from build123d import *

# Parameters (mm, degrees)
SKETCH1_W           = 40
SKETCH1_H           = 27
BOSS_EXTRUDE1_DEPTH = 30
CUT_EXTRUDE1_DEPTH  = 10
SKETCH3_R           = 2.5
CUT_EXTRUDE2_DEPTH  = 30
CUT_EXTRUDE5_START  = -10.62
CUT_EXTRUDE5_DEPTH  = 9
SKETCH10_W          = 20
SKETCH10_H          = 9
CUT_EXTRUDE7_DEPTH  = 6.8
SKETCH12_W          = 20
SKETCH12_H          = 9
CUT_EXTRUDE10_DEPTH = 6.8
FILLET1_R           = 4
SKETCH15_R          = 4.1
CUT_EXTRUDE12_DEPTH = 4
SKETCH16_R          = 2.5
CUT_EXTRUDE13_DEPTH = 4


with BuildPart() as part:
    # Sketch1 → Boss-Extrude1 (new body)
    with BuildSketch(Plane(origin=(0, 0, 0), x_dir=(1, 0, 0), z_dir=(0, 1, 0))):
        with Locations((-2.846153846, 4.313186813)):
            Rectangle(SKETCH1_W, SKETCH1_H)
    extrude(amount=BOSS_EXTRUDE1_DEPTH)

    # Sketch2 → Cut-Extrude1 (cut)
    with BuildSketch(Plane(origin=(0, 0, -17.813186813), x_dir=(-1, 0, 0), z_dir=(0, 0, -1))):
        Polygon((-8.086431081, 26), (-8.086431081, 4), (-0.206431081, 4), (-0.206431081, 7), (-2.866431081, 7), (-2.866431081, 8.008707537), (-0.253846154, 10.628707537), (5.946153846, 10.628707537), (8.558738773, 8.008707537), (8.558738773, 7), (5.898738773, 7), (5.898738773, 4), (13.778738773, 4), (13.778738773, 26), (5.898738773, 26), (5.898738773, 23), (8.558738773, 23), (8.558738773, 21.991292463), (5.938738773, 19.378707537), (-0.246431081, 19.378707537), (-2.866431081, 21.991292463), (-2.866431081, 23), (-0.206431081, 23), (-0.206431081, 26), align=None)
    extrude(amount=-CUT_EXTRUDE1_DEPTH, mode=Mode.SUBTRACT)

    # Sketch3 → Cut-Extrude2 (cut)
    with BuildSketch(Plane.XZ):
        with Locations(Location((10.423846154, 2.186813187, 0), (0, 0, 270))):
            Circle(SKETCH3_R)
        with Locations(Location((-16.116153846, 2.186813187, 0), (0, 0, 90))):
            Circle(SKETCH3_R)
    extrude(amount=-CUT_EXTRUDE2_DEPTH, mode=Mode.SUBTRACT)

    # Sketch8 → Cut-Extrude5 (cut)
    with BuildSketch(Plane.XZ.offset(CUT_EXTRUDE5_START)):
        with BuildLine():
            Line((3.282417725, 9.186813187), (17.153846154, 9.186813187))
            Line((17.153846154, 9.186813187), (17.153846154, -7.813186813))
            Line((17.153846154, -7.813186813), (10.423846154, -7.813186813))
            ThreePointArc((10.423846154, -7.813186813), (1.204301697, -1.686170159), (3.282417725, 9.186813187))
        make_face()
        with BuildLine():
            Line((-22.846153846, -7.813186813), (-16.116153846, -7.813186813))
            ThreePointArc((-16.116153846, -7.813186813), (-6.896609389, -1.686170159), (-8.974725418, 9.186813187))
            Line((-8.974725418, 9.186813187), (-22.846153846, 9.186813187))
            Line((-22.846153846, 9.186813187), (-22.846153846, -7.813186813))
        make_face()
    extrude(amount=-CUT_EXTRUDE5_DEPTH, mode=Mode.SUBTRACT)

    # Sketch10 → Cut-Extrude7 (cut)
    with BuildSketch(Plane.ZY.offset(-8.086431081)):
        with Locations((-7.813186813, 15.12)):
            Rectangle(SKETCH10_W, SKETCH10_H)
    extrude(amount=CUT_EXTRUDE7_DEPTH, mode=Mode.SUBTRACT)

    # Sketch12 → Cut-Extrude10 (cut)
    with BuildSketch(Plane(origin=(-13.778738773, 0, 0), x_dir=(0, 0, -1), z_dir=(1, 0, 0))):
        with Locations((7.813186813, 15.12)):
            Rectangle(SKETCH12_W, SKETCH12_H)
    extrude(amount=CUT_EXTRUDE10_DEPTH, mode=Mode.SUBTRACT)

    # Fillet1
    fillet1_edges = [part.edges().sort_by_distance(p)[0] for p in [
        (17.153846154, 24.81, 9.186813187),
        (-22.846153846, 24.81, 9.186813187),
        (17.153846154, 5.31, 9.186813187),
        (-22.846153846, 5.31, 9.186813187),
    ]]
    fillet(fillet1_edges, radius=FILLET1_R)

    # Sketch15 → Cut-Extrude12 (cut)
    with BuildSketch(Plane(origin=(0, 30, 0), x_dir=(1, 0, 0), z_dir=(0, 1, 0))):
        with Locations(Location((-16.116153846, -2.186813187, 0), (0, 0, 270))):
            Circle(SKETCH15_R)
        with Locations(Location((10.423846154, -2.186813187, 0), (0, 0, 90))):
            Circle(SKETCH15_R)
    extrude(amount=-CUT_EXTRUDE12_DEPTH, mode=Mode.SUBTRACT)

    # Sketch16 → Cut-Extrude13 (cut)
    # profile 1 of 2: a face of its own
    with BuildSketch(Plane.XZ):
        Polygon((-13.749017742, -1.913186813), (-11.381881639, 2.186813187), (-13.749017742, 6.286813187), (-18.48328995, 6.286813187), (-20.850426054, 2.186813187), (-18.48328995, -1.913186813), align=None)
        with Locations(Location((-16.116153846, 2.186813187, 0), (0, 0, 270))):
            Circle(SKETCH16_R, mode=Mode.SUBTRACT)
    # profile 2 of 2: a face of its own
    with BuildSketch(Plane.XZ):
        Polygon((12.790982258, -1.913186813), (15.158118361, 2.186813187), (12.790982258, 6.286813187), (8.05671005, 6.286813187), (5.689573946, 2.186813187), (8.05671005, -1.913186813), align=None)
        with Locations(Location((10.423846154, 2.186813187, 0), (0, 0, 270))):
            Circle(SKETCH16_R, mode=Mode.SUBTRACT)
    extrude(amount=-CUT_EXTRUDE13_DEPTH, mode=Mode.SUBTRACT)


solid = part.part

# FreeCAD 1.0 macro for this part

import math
import FreeCAD as App
import Part
import Sketcher
Q = App.Units.Quantity


def edges_at(feature, points):
    """Names of the edges that pass closest to the given points."""
    edges = feature.Shape.Edges
    near = lambda p: min(range(len(edges)), key=lambda i: edges[i].distToShape(Part.Vertex(*p))[0])
    return sorted({f"Edge{near(p) + 1}" for p in points})

doc = App.newDocument("Part")
body = doc.addObject("PartDesign::Body", "Body")

# Sketch on XZ plane
sketch1 = body.newObject("Sketcher::SketchObject", "Sketch")
sketch1.AttachmentSupport = (doc.getObject("XZ_Plane"), [""])
sketch1.MapMode = "FlatFace"
sketch1.addGeometry(Part.LineSegment(App.Vector(-23, -18, 0), App.Vector(-23, 9, 0)), False)
sketch1.addGeometry(Part.LineSegment(App.Vector(-23, 9, 0), App.Vector(17, 9, 0)), False)
sketch1.addGeometry(Part.LineSegment(App.Vector(17, 9, 0), App.Vector(17, -18, 0)), False)
sketch1.addGeometry(Part.LineSegment(App.Vector(17, -18, 0), App.Vector(-23, -18, 0)), False)
sketch1.addConstraint(Sketcher.Constraint("Coincident", 0, 2, 1, 1))
sketch1.addConstraint(Sketcher.Constraint("Coincident", 1, 2, 2, 1))
sketch1.addConstraint(Sketcher.Constraint("Coincident", 2, 2, 3, 1))
sketch1.addConstraint(Sketcher.Constraint("Coincident", 3, 2, 0, 1))
sketch1.addConstraint(Sketcher.Constraint("Vertical", 0))
sketch1.addConstraint(Sketcher.Constraint("Horizontal", 1))
sketch1.addConstraint(Sketcher.Constraint("Vertical", 2))
sketch1.addConstraint(Sketcher.Constraint("Horizontal", 3))
sketch1.addConstraint(Sketcher.Constraint("DistanceX", 1, 1, 1, 2, Q("40 mm")))
sketch1.addConstraint(Sketcher.Constraint("DistanceY", 0, 1, 0, 2, Q("27 mm")))
sketch1.addConstraint(Sketcher.Constraint("DistanceX", 0, 2, -1, 1, Q("22.846154 mm")))
sketch1.addConstraint(Sketcher.Constraint("DistanceY", -1, 1, 0, 2, Q("9.186813 mm")))
pad1 = body.newObject("PartDesign::Pad", "Pad")
pad1.Profile = sketch1
pad1.Length = 30
pad1.Reversed = True

# Sketch on XY plane
sketch2 = body.newObject("Sketcher::SketchObject", "Sketch001")
sketch2.AttachmentSupport = (doc.getObject("XY_Plane"), [""])
sketch2.MapMode = "FlatFace"
sketch2.AttachmentOffset = App.Placement(App.Vector(0, 0, -17.813187), App.Rotation())
sketch2.addGeometry(Part.LineSegment(App.Vector(8.1, 26, 0), App.Vector(8.1, 4, 0)), False)
sketch2.addGeometry(Part.LineSegment(App.Vector(8.1, 4, 0), App.Vector(0.2, 4, 0)), False)
sketch2.addGeometry(Part.LineSegment(App.Vector(0.2, 4, 0), App.Vector(0.2, 7, 0)), False)
sketch2.addGeometry(Part.LineSegment(App.Vector(0.2, 7, 0), App.Vector(2.9, 7, 0)), False)
sketch2.addGeometry(Part.LineSegment(App.Vector(2.9, 7, 0), App.Vector(2.9, 8, 0)), False)
sketch2.addGeometry(Part.LineSegment(App.Vector(2.9, 8, 0), App.Vector(0.3, 10.6, 0)), False)
sketch2.addGeometry(Part.LineSegment(App.Vector(0.3, 10.6, 0), App.Vector(-5.9, 10.6, 0)), False)
sketch2.addGeometry(Part.LineSegment(App.Vector(-5.9, 10.6, 0), App.Vector(-8.6, 8, 0)), False)
sketch2.addGeometry(Part.LineSegment(App.Vector(-8.6, 8, 0), App.Vector(-8.6, 7, 0)), False)
sketch2.addGeometry(Part.LineSegment(App.Vector(-8.6, 7, 0), App.Vector(-5.9, 7, 0)), False)
sketch2.addGeometry(Part.LineSegment(App.Vector(-5.9, 7, 0), App.Vector(-5.9, 4, 0)), False)
sketch2.addGeometry(Part.LineSegment(App.Vector(-5.9, 4, 0), App.Vector(-13.8, 4, 0)), False)
sketch2.addGeometry(Part.LineSegment(App.Vector(-13.8, 4, 0), App.Vector(-13.8, 26, 0)), False)
sketch2.addGeometry(Part.LineSegment(App.Vector(-13.8, 26, 0), App.Vector(-5.9, 26, 0)), False)
sketch2.addGeometry(Part.LineSegment(App.Vector(-5.9, 26, 0), App.Vector(-5.9, 23, 0)), False)
sketch2.addGeometry(Part.LineSegment(App.Vector(-5.9, 23, 0), App.Vector(-8.6, 23, 0)), False)
sketch2.addGeometry(Part.LineSegment(App.Vector(-8.6, 23, 0), App.Vector(-8.6, 22, 0)), False)
sketch2.addGeometry(Part.LineSegment(App.Vector(-8.6, 22, 0), App.Vector(-5.9, 19.4, 0)), False)
sketch2.addGeometry(Part.LineSegment(App.Vector(-5.9, 19.4, 0), App.Vector(0.2, 19.4, 0)), False)
sketch2.addGeometry(Part.LineSegment(App.Vector(0.2, 19.4, 0), App.Vector(2.9, 22, 0)), False)
sketch2.addGeometry(Part.LineSegment(App.Vector(2.9, 22, 0), App.Vector(2.9, 23, 0)), False)
sketch2.addGeometry(Part.LineSegment(App.Vector(2.9, 23, 0), App.Vector(0.2, 23, 0)), False)
sketch2.addGeometry(Part.LineSegment(App.Vector(0.2, 23, 0), App.Vector(0.2, 26, 0)), False)
sketch2.addGeometry(Part.LineSegment(App.Vector(0.2, 26, 0), App.Vector(8.1, 26, 0)), False)
sketch2.addConstraint(Sketcher.Constraint("Coincident", 0, 2, 1, 1))
sketch2.addConstraint(Sketcher.Constraint("Coincident", 1, 2, 2, 1))
sketch2.addConstraint(Sketcher.Constraint("Coincident", 2, 2, 3, 1))
sketch2.addConstraint(Sketcher.Constraint("Coincident", 3, 2, 4, 1))
sketch2.addConstraint(Sketcher.Constraint("Coincident", 4, 2, 5, 1))
sketch2.addConstraint(Sketcher.Constraint("Coincident", 5, 2, 6, 1))
sketch2.addConstraint(Sketcher.Constraint("Coincident", 6, 2, 7, 1))
sketch2.addConstraint(Sketcher.Constraint("Coincident", 7, 2, 8, 1))
sketch2.addConstraint(Sketcher.Constraint("Coincident", 8, 2, 9, 1))
sketch2.addConstraint(Sketcher.Constraint("Coincident", 9, 2, 10, 1))
sketch2.addConstraint(Sketcher.Constraint("Coincident", 10, 2, 11, 1))
sketch2.addConstraint(Sketcher.Constraint("Coincident", 11, 2, 12, 1))
sketch2.addConstraint(Sketcher.Constraint("Coincident", 12, 2, 13, 1))
sketch2.addConstraint(Sketcher.Constraint("Coincident", 13, 2, 14, 1))
sketch2.addConstraint(Sketcher.Constraint("Coincident", 14, 2, 15, 1))
sketch2.addConstraint(Sketcher.Constraint("Coincident", 15, 2, 16, 1))
sketch2.addConstraint(Sketcher.Constraint("Coincident", 16, 2, 17, 1))
sketch2.addConstraint(Sketcher.Constraint("Coincident", 17, 2, 18, 1))
sketch2.addConstraint(Sketcher.Constraint("Coincident", 18, 2, 19, 1))
sketch2.addConstraint(Sketcher.Constraint("Coincident", 19, 2, 20, 1))
sketch2.addConstraint(Sketcher.Constraint("Coincident", 20, 2, 21, 1))
sketch2.addConstraint(Sketcher.Constraint("Coincident", 21, 2, 22, 1))
sketch2.addConstraint(Sketcher.Constraint("Coincident", 22, 2, 23, 1))
sketch2.addConstraint(Sketcher.Constraint("Coincident", 23, 2, 0, 1))
sketch2.addConstraint(Sketcher.Constraint("Vertical", 0))
sketch2.addConstraint(Sketcher.Constraint("Horizontal", 1))
sketch2.addConstraint(Sketcher.Constraint("Vertical", 2))
sketch2.addConstraint(Sketcher.Constraint("Horizontal", 3))
sketch2.addConstraint(Sketcher.Constraint("Vertical", 4))
sketch2.addConstraint(Sketcher.Constraint("Horizontal", 6))
sketch2.addConstraint(Sketcher.Constraint("Vertical", 8))
sketch2.addConstraint(Sketcher.Constraint("Horizontal", 9))
sketch2.addConstraint(Sketcher.Constraint("Vertical", 10))
sketch2.addConstraint(Sketcher.Constraint("Horizontal", 11))
sketch2.addConstraint(Sketcher.Constraint("Vertical", 12))
sketch2.addConstraint(Sketcher.Constraint("Horizontal", 13))
sketch2.addConstraint(Sketcher.Constraint("Vertical", 14))
sketch2.addConstraint(Sketcher.Constraint("Horizontal", 15))
sketch2.addConstraint(Sketcher.Constraint("Vertical", 16))
sketch2.addConstraint(Sketcher.Constraint("Horizontal", 18))
sketch2.addConstraint(Sketcher.Constraint("Vertical", 20))
sketch2.addConstraint(Sketcher.Constraint("Horizontal", 21))
sketch2.addConstraint(Sketcher.Constraint("Vertical", 22))
sketch2.addConstraint(Sketcher.Constraint("Horizontal", 23))
sketch2.addConstraint(Sketcher.Constraint("Perpendicular", 7, 17))
sketch2.addConstraint(Sketcher.Constraint("Perpendicular", 5, 19))
sketch2.addConstraint(Sketcher.Constraint("Horizontal", 4, 2, 7, 2))
sketch2.addConstraint(Sketcher.Constraint("Horizontal", 3, 2, 8, 2))
sketch2.addConstraint(Sketcher.Constraint("Horizontal", 1, 2, 10, 2))
sketch2.addConstraint(Sketcher.Constraint("Horizontal", 16, 2, 19, 2))
sketch2.addConstraint(Sketcher.Constraint("Horizontal", 15, 2, 20, 2))
sketch2.addConstraint(Sketcher.Constraint("Horizontal", 13, 2, 22, 2))
sketch2.addConstraint(Sketcher.Constraint("Vertical", 10, 2, 13, 2))
sketch2.addConstraint(Sketcher.Constraint("Vertical", 8, 2, 15, 2))
sketch2.addConstraint(Sketcher.Constraint("Vertical", 4, 2, 19, 2))
sketch2.addConstraint(Sketcher.Constraint("Vertical", 2, 2, 21, 2))
sketch2.addConstraint(Sketcher.Constraint("Equal", 3, 9))
sketch2.addConstraint(Sketcher.Constraint("Equal", 1, 11))
sketch2.addConstraint(Sketcher.Constraint("Equal", 10, 14))
sketch2.addConstraint(Sketcher.Constraint("Equal", 8, 16))
sketch2.addConstraint(Sketcher.Constraint("Equal", 5, 7))
sketch2.addConstraint(Sketcher.Constraint("Equal", 7, 17))
sketch2.addConstraint(Sketcher.Constraint("DistanceY", 0, 2, 0, 1, Q("22 mm")))
sketch2.addConstraint(Sketcher.Constraint("DistanceY", 2, 1, 2, 2, Q("3 mm")))
sketch2.addConstraint(Sketcher.Constraint("DistanceX", 6, 2, 6, 1, Q("6.2 mm")))
sketch2.addConstraint(Sketcher.Constraint("DistanceY", -1, 1, 0, 2, Q("4 mm")))
sketch2.addConstraint(Sketcher.Constraint("Distance", 5, Q("3.7 mm")))
sketch2.addConstraint(Sketcher.Constraint("DistanceX", 1, 2, 1, 1, Q("7.88 mm")))
sketch2.addConstraint(Sketcher.Constraint("DistanceX", 3, 1, 3, 2, Q("2.66 mm")))
sketch2.addConstraint(Sketcher.Constraint("DistanceY", 4, 2, 5, 2, Q("2.62 mm")))
sketch2.addConstraint(Sketcher.Constraint("DistanceY", 6, 2, 17, 2, Q("8.75 mm")))
sketch2.addConstraint(Sketcher.Constraint("DistanceX", -1, 1, 0, 2, Q("8.086431 mm")))
pocket1 = body.newObject("PartDesign::Pocket", "Pocket")
pocket1.Profile = sketch2
pocket1.Length = 10
pocket1.Reversed = True

# Sketch on XZ plane
sketch3 = body.newObject("Sketcher::SketchObject", "Sketch002")
sketch3.AttachmentSupport = (doc.getObject("XZ_Plane"), [""])
sketch3.MapMode = "FlatFace"
sketch3.addGeometry(Part.Circle(App.Vector(10.4, 2.2, 0), App.Vector(0, 0, 1), 2.5), False)
sketch3.addGeometry(Part.Circle(App.Vector(-16.1, 2.2, 0), App.Vector(0, 0, 1), 2.5), False)
sketch3.addConstraint(Sketcher.Constraint("Equal", 0, 1))
sketch3.addConstraint(Sketcher.Constraint("Horizontal", 0, 3, 1, 3))
sketch3.addConstraint(Sketcher.Constraint("Diameter", 0, Q("5 mm")))
sketch3.addConstraint(Sketcher.Constraint("DistanceX", 1, 3, 0, 3, Q("26.54 mm")))
sketch3.addConstraint(Sketcher.Constraint("DistanceX", -1, 1, 0, 3, Q("10.423846 mm")))
sketch3.addConstraint(Sketcher.Constraint("DistanceY", -1, 1, 0, 3, Q("2.186813 mm")))
pocket2 = body.newObject("PartDesign::Pocket", "Pocket001")
pocket2.Profile = sketch3
pocket2.Length = 30

# Sketch on XZ plane
sketch4 = body.newObject("Sketcher::SketchObject", "Sketch003")
sketch4.AttachmentSupport = (doc.getObject("XZ_Plane"), [""])
sketch4.MapMode = "FlatFace"
sketch4.AttachmentOffset = App.Placement(App.Vector(0, 0, -10.62), App.Rotation())
sketch4.addGeometry(Part.LineSegment(App.Vector(17, 9, 0), App.Vector(3, 9, 0)), False)
sketch4.addGeometry(Part.ArcOfCircle(Part.Circle(App.Vector(10, 2, 0), App.Vector(0, 0, 1), 10), math.radians(136), math.radians(270)), False)
sketch4.addGeometry(Part.LineSegment(App.Vector(10, -8, 0), App.Vector(17, -8, 0)), False)
sketch4.addGeometry(Part.LineSegment(App.Vector(17, -8, 0), App.Vector(17, 9, 0)), False)
sketch4.addGeometry(Part.LineSegment(App.Vector(-23, -8, 0), App.Vector(-16, -8, 0)), False)
sketch4.addGeometry(Part.ArcOfCircle(Part.Circle(App.Vector(-16, 2, 0), App.Vector(0, 0, 1), 10), math.radians(-90), math.radians(44)), False)
sketch4.addGeometry(Part.LineSegment(App.Vector(-9, 9, 0), App.Vector(-23, 9, 0)), False)
sketch4.addGeometry(Part.LineSegment(App.Vector(-23, 9, 0), App.Vector(-23, -8, 0)), False)
sketch4.addConstraint(Sketcher.Constraint("Coincident", 0, 2, 1, 1))
sketch4.addConstraint(Sketcher.Constraint("Tangent", 1, 2, 2, 1))
sketch4.addConstraint(Sketcher.Constraint("Coincident", 2, 2, 3, 1))
sketch4.addConstraint(Sketcher.Constraint("Coincident", 3, 2, 0, 1))
sketch4.addConstraint(Sketcher.Constraint("Tangent", 4, 2, 5, 1))
sketch4.addConstraint(Sketcher.Constraint("Coincident", 5, 2, 6, 1))
sketch4.addConstraint(Sketcher.Constraint("Coincident", 6, 2, 7, 1))
sketch4.addConstraint(Sketcher.Constraint("Coincident", 7, 2, 4, 1))
sketch4.addConstraint(Sketcher.Constraint("Horizontal", 0))
sketch4.addConstraint(Sketcher.Constraint("Horizontal", 2))
sketch4.addConstraint(Sketcher.Constraint("Vertical", 3))
sketch4.addConstraint(Sketcher.Constraint("Horizontal", 4))
sketch4.addConstraint(Sketcher.Constraint("Horizontal", 6))
sketch4.addConstraint(Sketcher.Constraint("Vertical", 7))
sketch4.addConstraint(Sketcher.Constraint("Equal", 1, 5))
sketch4.addConstraint(Sketcher.Constraint("Horizontal", 1, 3, 5, 3))
sketch4.addConstraint(Sketcher.Constraint("Horizontal", 3, 2, 5, 2))
sketch4.addConstraint(Sketcher.Constraint("Equal", 2, 4))
sketch4.addConstraint(Sketcher.Constraint("Radius", 1, Q("10 mm")))
sketch4.addConstraint(Sketcher.Constraint("DistanceY", 3, 1, 3, 2, Q("17 mm")))
sketch4.addConstraint(Sketcher.Constraint("DistanceX", 2, 1, 2, 2, Q("6.73 mm")))
sketch4.addConstraint(Sketcher.Constraint("DistanceX", 5, 3, 1, 3, Q("26.54 mm")))
sketch4.addConstraint(Sketcher.Constraint("DistanceX", -1, 1, 1, 3, Q("10.423846 mm")))
sketch4.addConstraint(Sketcher.Constraint("DistanceY", -1, 1, 1, 3, Q("2.186813 mm")))
pocket3 = body.newObject("PartDesign::Pocket", "Pocket002")
pocket3.Profile = sketch4
pocket3.Length = 9

# Sketch on YZ plane
sketch5 = body.newObject("Sketcher::SketchObject", "Sketch004")
sketch5.AttachmentSupport = (doc.getObject("YZ_Plane"), [""])
sketch5.MapMode = "FlatFace"
sketch5.AttachmentOffset = App.Placement(App.Vector(0, 0, 8.086431), App.Rotation())
sketch5.addGeometry(Part.LineSegment(App.Vector(20, -18, 0), App.Vector(11, -18, 0)), False)
sketch5.addGeometry(Part.LineSegment(App.Vector(11, -18, 0), App.Vector(11, 2, 0)), False)
sketch5.addGeometry(Part.LineSegment(App.Vector(11, 2, 0), App.Vector(20, 2, 0)), False)
sketch5.addGeometry(Part.LineSegment(App.Vector(20, 2, 0), App.Vector(20, -18, 0)), False)
sketch5.addConstraint(Sketcher.Constraint("Coincident", 0, 2, 1, 1))
sketch5.addConstraint(Sketcher.Constraint("Coincident", 1, 2, 2, 1))
sketch5.addConstraint(Sketcher.Constraint("Coincident", 2, 2, 3, 1))
sketch5.addConstraint(Sketcher.Constraint("Coincident", 3, 2, 0, 1))
sketch5.addConstraint(Sketcher.Constraint("Horizontal", 0))
sketch5.addConstraint(Sketcher.Constraint("Vertical", 1))
sketch5.addConstraint(Sketcher.Constraint("Horizontal", 2))
sketch5.addConstraint(Sketcher.Constraint("Vertical", 3))
sketch5.addConstraint(Sketcher.Constraint("DistanceX", 0, 2, 0, 1, Q("9 mm")))
sketch5.addConstraint(Sketcher.Constraint("DistanceY", 1, 1, 1, 2, Q("20 mm")))
sketch5.addConstraint(Sketcher.Constraint("DistanceX", -1, 1, 0, 2, Q("10.62 mm")))
sketch5.addConstraint(Sketcher.Constraint("DistanceY", 0, 2, -1, 1, Q("17.813187 mm")))
pocket4 = body.newObject("PartDesign::Pocket", "Pocket003")
pocket4.Profile = sketch5
pocket4.Length = 6.8

# Sketch on YZ plane
sketch6 = body.newObject("Sketcher::SketchObject", "Sketch005")
sketch6.AttachmentSupport = (doc.getObject("YZ_Plane"), [""])
sketch6.MapMode = "FlatFace"
sketch6.AttachmentOffset = App.Placement(App.Vector(0, 0, -13.778739), App.Rotation())
sketch6.addGeometry(Part.LineSegment(App.Vector(20, 2, 0), App.Vector(11, 2, 0)), False)
sketch6.addGeometry(Part.LineSegment(App.Vector(11, 2, 0), App.Vector(11, -18, 0)), False)
sketch6.addGeometry(Part.LineSegment(App.Vector(11, -18, 0), App.Vector(20, -18, 0)), False)
sketch6.addGeometry(Part.LineSegment(App.Vector(20, -18, 0), App.Vector(20, 2, 0)), False)
sketch6.addConstraint(Sketcher.Constraint("Coincident", 0, 2, 1, 1))
sketch6.addConstraint(Sketcher.Constraint("Coincident", 1, 2, 2, 1))
sketch6.addConstraint(Sketcher.Constraint("Coincident", 2, 2, 3, 1))
sketch6.addConstraint(Sketcher.Constraint("Coincident", 3, 2, 0, 1))
sketch6.addConstraint(Sketcher.Constraint("Horizontal", 0))
sketch6.addConstraint(Sketcher.Constraint("Vertical", 1))
sketch6.addConstraint(Sketcher.Constraint("Horizontal", 2))
sketch6.addConstraint(Sketcher.Constraint("Vertical", 3))
sketch6.addConstraint(Sketcher.Constraint("DistanceX", 0, 2, 0, 1, Q("9 mm")))
sketch6.addConstraint(Sketcher.Constraint("DistanceY", 1, 2, 1, 1, Q("20 mm")))
sketch6.addConstraint(Sketcher.Constraint("DistanceX", -1, 1, 0, 2, Q("10.62 mm")))
sketch6.addConstraint(Sketcher.Constraint("DistanceY", -1, 1, 0, 2, Q("2.186813 mm")))
pocket5 = body.newObject("PartDesign::Pocket", "Pocket004")
pocket5.Profile = sketch6
pocket5.Length = 6.8
pocket5.Reversed = True
doc.recompute()

fillet = body.newObject("PartDesign::Fillet", "Fillet")
fillet.Base = (pocket5, edges_at(pocket5, [
    (17.154, 24.81, 9.187),
    (-22.846, 24.81, 9.187),
    (17.154, 5.31, 9.187),
    (-22.846, 5.31, 9.187),
]))
fillet.Radius = 4

# Sketch on XZ plane
sketch7 = body.newObject("Sketcher::SketchObject", "Sketch006")
sketch7.AttachmentSupport = (doc.getObject("XZ_Plane"), [""])
sketch7.MapMode = "FlatFace"
sketch7.AttachmentOffset = App.Placement(App.Vector(0, 0, -30), App.Rotation())
sketch7.addGeometry(Part.Circle(App.Vector(-16.1, 2.2, 0), App.Vector(0, 0, 1), 4.1), False)
sketch7.addGeometry(Part.Circle(App.Vector(10.4, 2.2, 0), App.Vector(0, 0, 1), 4.1), False)
sketch7.addConstraint(Sketcher.Constraint("Equal", 0, 1))
sketch7.addConstraint(Sketcher.Constraint("Horizontal", 0, 3, 1, 3))
sketch7.addConstraint(Sketcher.Constraint("Diameter", 0, Q("8.2 mm")))
sketch7.addConstraint(Sketcher.Constraint("DistanceX", 0, 3, 1, 3, Q("26.54 mm")))
sketch7.addConstraint(Sketcher.Constraint("DistanceX", 0, 3, -1, 1, Q("16.116154 mm")))
sketch7.addConstraint(Sketcher.Constraint("DistanceY", -1, 1, 0, 3, Q("2.186813 mm")))
pocket6 = body.newObject("PartDesign::Pocket", "Pocket005")
pocket6.Profile = sketch7
pocket6.Length = 4
pocket6.Reversed = True

# Sketch on XZ plane
sketch8 = body.newObject("Sketcher::SketchObject", "Sketch007")
sketch8.AttachmentSupport = (doc.getObject("XZ_Plane"), [""])
sketch8.MapMode = "FlatFace"
sketch8.addGeometry(Part.LineSegment(App.Vector(-13.7, -1.9, 0), App.Vector(-11.4, 2.2, 0)), False)
sketch8.addGeometry(Part.LineSegment(App.Vector(-11.4, 2.2, 0), App.Vector(-13.7, 6.3, 0)), False)
sketch8.addGeometry(Part.LineSegment(App.Vector(-13.7, 6.3, 0), App.Vector(-18.5, 6.3, 0)), False)
sketch8.addGeometry(Part.LineSegment(App.Vector(-18.5, 6.3, 0), App.Vector(-20.9, 2.2, 0)), False)
sketch8.addGeometry(Part.LineSegment(App.Vector(-20.9, 2.2, 0), App.Vector(-18.5, -1.9, 0)), False)
sketch8.addGeometry(Part.LineSegment(App.Vector(-18.5, -1.9, 0), App.Vector(-13.7, -1.9, 0)), False)
sketch8.addGeometry(Part.Circle(App.Vector(-16.1, 2.2, 0), App.Vector(0, 0, 1), 2.5), False)
sketch8.addGeometry(Part.LineSegment(App.Vector(12.8, -1.9, 0), App.Vector(15.2, 2.2, 0)), False)
sketch8.addGeometry(Part.LineSegment(App.Vector(15.2, 2.2, 0), App.Vector(12.8, 6.3, 0)), False)
sketch8.addGeometry(Part.LineSegment(App.Vector(12.8, 6.3, 0), App.Vector(8.1, 6.3, 0)), False)
sketch8.addGeometry(Part.LineSegment(App.Vector(8.1, 6.3, 0), App.Vector(5.7, 2.2, 0)), False)
sketch8.addGeometry(Part.LineSegment(App.Vector(5.7, 2.2, 0), App.Vector(8.1, -1.9, 0)), False)
sketch8.addGeometry(Part.LineSegment(App.Vector(8.1, -1.9, 0), App.Vector(12.8, -1.9, 0)), False)
sketch8.addGeometry(Part.Circle(App.Vector(10.4, 2.2, 0), App.Vector(0, 0, 1), 2.5), False)
sketch8.addConstraint(Sketcher.Constraint("Coincident", 0, 2, 1, 1))
sketch8.addConstraint(Sketcher.Constraint("Coincident", 1, 2, 2, 1))
sketch8.addConstraint(Sketcher.Constraint("Coincident", 2, 2, 3, 1))
sketch8.addConstraint(Sketcher.Constraint("Coincident", 3, 2, 4, 1))
sketch8.addConstraint(Sketcher.Constraint("Coincident", 4, 2, 5, 1))
sketch8.addConstraint(Sketcher.Constraint("Coincident", 5, 2, 0, 1))
sketch8.addConstraint(Sketcher.Constraint("Coincident", 7, 2, 8, 1))
sketch8.addConstraint(Sketcher.Constraint("Coincident", 8, 2, 9, 1))
sketch8.addConstraint(Sketcher.Constraint("Coincident", 9, 2, 10, 1))
sketch8.addConstraint(Sketcher.Constraint("Coincident", 10, 2, 11, 1))
sketch8.addConstraint(Sketcher.Constraint("Coincident", 11, 2, 12, 1))
sketch8.addConstraint(Sketcher.Constraint("Coincident", 12, 2, 7, 1))
sketch8.addConstraint(Sketcher.Constraint("Horizontal", 2))
sketch8.addConstraint(Sketcher.Constraint("Horizontal", 5))
sketch8.addConstraint(Sketcher.Constraint("Horizontal", 9))
sketch8.addConstraint(Sketcher.Constraint("Horizontal", 12))
sketch8.addConstraint(Sketcher.Constraint("Equal", 6, 13))
sketch8.addConstraint(Sketcher.Constraint("Parallel", 0, 3))
sketch8.addConstraint(Sketcher.Constraint("Parallel", 1, 4))
sketch8.addConstraint(Sketcher.Constraint("Parallel", 3, 7))
sketch8.addConstraint(Sketcher.Constraint("Parallel", 4, 8))
sketch8.addConstraint(Sketcher.Constraint("Parallel", 7, 10))
sketch8.addConstraint(Sketcher.Constraint("Parallel", 8, 11))
sketch8.addConstraint(Sketcher.Constraint("Horizontal", 6, 3, 13, 3))
sketch8.addConstraint(Sketcher.Constraint("Horizontal", 13, 3, 0, 2))
sketch8.addConstraint(Sketcher.Constraint("Horizontal", 0, 2, 3, 2))
sketch8.addConstraint(Sketcher.Constraint("Horizontal", 3, 2, 7, 2))
sketch8.addConstraint(Sketcher.Constraint("Horizontal", 2, 2, 8, 2))
sketch8.addConstraint(Sketcher.Constraint("Horizontal", 7, 2, 10, 2))
sketch8.addConstraint(Sketcher.Constraint("Horizontal", 5, 2, 11, 2))
sketch8.addConstraint(Sketcher.Constraint("Vertical", 2, 2, 4, 2))
sketch8.addConstraint(Sketcher.Constraint("Vertical", 1, 2, 5, 2))
sketch8.addConstraint(Sketcher.Constraint("Equal", 5, 9))
sketch8.addConstraint(Sketcher.Constraint("Diameter", 6, Q("5 mm")))
sketch8.addConstraint(Sketcher.Constraint("Angle", 0, Q("60 deg")))
sketch8.addConstraint(Sketcher.Constraint("DistanceY", 0, 2, 1, 2, Q("4.1 mm")))
sketch8.addConstraint(Sketcher.Constraint("DistanceX", 6, 3, 13, 3, Q("26.54 mm")))
sketch8.addConstraint(Sketcher.Constraint("DistanceX", 0, 2, 7, 2, Q("26.54 mm")))
sketch8.addConstraint(Sketcher.Constraint("DistanceX", 2, 2, 2, 1, Q("4.734272 mm")))
sketch8.addConstraint(Sketcher.Constraint("DistanceX", 0, 2, -1, 1, Q("11.381882 mm")))
sketch8.addConstraint(Sketcher.Constraint("DistanceX", 6, 3, -1, 1, Q("16.116154 mm")))
sketch8.addConstraint(Sketcher.Constraint("DistanceY", -1, 1, 6, 3, Q("2.186813 mm")))
pocket7 = body.newObject("PartDesign::Pocket", "Pocket006")
pocket7.Profile = sketch8
pocket7.Length = 4

doc.recompute()
